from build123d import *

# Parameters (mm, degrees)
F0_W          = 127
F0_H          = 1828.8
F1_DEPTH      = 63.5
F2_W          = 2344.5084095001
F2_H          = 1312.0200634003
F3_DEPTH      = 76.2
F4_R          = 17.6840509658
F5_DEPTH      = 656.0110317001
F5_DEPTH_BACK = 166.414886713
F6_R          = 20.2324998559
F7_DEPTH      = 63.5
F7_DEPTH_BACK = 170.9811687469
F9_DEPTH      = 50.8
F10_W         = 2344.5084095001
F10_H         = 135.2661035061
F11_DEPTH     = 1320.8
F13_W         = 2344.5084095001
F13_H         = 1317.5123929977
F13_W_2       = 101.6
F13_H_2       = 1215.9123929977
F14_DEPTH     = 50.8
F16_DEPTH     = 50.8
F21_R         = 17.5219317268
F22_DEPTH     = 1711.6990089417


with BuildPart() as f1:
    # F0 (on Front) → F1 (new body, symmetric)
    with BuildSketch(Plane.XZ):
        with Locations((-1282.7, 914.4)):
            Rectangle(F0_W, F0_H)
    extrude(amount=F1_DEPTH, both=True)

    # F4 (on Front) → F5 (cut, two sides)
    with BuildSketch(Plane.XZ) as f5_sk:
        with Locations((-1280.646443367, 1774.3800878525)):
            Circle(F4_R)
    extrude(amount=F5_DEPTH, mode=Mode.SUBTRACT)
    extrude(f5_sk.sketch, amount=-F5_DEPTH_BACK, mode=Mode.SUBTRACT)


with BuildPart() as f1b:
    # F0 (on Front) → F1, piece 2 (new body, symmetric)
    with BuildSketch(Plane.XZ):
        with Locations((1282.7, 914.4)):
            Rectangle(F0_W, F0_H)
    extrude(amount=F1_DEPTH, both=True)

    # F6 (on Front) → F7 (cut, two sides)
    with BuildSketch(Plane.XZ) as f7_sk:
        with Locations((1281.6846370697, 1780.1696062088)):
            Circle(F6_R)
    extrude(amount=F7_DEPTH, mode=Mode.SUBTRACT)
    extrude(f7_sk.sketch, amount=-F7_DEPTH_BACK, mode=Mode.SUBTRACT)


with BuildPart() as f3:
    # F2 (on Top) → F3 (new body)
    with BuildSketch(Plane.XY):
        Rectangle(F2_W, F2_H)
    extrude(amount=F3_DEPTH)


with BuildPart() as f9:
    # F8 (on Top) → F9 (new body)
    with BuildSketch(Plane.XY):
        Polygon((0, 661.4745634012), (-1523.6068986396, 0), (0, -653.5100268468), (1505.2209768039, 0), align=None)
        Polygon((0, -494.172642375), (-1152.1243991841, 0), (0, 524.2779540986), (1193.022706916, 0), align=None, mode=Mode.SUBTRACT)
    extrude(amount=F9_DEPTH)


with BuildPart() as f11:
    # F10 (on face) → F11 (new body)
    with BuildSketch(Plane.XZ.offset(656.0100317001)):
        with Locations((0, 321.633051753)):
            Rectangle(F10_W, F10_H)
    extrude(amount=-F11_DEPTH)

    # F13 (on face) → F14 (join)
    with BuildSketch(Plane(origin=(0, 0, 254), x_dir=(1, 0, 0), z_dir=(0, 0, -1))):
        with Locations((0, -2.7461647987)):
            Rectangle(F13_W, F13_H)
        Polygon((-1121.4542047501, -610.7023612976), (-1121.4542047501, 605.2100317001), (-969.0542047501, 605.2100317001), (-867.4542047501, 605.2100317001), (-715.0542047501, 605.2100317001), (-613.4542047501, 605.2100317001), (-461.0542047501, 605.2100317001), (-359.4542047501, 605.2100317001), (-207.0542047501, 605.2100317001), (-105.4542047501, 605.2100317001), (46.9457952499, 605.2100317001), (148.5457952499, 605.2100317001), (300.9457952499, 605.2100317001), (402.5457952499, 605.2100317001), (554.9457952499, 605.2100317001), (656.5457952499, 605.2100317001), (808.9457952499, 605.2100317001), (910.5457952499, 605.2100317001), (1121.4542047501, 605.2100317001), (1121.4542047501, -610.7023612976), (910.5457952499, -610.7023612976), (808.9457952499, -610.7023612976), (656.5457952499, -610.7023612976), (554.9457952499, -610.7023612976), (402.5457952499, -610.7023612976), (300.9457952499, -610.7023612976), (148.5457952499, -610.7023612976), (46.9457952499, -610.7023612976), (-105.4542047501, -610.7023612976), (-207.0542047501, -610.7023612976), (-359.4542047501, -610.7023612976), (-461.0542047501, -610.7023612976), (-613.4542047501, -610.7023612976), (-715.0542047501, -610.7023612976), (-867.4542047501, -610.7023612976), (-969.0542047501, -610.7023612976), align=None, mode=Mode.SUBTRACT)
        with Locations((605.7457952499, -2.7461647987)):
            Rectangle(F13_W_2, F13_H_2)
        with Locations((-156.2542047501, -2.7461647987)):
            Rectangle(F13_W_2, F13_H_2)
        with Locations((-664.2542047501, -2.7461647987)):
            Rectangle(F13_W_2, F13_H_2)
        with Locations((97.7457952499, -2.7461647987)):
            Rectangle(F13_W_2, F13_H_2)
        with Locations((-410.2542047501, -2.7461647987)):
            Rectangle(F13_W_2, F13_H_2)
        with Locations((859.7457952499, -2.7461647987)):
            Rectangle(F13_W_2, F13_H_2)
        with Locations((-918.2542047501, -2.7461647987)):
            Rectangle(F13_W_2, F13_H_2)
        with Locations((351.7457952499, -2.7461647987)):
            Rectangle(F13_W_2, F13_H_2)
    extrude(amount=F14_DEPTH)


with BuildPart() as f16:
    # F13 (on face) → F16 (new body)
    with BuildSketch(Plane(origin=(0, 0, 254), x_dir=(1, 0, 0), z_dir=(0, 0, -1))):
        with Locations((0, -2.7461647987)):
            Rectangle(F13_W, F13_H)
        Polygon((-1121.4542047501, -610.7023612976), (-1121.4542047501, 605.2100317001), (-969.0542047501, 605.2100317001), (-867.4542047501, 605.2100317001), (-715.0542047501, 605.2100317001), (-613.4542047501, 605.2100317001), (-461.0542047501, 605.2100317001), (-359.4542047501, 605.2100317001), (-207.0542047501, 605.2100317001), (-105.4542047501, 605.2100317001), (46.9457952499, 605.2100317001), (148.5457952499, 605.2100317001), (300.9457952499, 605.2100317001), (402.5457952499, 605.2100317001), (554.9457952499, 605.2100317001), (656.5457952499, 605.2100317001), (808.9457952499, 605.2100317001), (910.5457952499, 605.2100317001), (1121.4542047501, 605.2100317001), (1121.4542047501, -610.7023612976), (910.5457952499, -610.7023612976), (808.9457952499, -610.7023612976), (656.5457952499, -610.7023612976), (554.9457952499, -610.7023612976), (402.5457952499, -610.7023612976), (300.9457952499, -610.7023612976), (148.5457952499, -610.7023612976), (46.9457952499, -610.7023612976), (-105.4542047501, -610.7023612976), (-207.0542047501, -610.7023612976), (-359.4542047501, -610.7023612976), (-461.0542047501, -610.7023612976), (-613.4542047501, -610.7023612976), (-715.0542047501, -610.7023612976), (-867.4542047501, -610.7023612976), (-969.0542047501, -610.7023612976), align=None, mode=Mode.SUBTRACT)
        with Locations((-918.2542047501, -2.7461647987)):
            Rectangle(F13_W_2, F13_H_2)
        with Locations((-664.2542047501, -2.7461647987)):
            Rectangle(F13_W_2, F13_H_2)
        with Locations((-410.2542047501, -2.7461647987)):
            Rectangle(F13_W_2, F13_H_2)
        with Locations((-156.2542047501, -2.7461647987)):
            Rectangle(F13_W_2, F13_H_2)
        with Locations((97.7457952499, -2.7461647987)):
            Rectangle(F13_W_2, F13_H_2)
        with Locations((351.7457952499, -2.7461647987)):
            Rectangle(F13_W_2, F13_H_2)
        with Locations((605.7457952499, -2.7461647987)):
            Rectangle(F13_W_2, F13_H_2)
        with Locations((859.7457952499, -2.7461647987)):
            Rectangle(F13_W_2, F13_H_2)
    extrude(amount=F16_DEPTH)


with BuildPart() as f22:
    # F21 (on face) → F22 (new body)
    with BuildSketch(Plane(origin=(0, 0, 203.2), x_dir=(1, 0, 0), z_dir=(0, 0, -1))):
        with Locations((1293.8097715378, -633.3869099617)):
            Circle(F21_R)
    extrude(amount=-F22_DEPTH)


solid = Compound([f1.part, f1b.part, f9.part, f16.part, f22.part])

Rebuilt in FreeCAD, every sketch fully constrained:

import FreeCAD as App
import Part
import Sketcher
Q = App.Units.Quantity


def add_polygon(sketch, points):
    """Adds a closed chain of lines whose ends are joined by coincident constraints."""
    first, n = sketch.GeometryCount, len(points)
    for a, b in zip(points, points[1:] + points[:1]):
        sketch.addGeometry(Part.LineSegment(App.Vector(*a, 0), App.Vector(*b, 0)), False)
    for i in range(n):
        sketch.addConstraint(Sketcher.Constraint("Coincident", first + i, 2, first + (i + 1) % n, 1))

doc = App.newDocument("Part")
body = doc.addObject("PartDesign::Body", "Body")

# Sketch on XZ plane
sketch1 = doc.addObject("Sketcher::SketchObject", "Sketch")
body.addObject(sketch1)
sketch1.AttachmentSupport = (doc.XZ_Plane, [""])
sketch1.MapMode = "FlatFace"
add_polygon(sketch1, [(-1346, 1829), (-1346, 0), (-1219, 0), (-1219, 1829)])  # lines 0-3
sketch1.addConstraint([
    Sketcher.Constraint("Vertical", 0),
    Sketcher.Constraint("Horizontal", 1),
    Sketcher.Constraint("Vertical", 2),
    Sketcher.Constraint("Horizontal", 3),
    Sketcher.Constraint("PointOnObject", 0, 2, -1),
    Sketcher.Constraint("DistanceX", 1, 1, 1, 2, Q("5 in")),
    Sketcher.Constraint("DistanceY", 0, 2, 0, 1, Q("72 in")),
    Sketcher.Constraint("DistanceX", 0, 2, -1, 1, Q("53 in")),
])
pad1 = doc.addObject("PartDesign::Pad", "Pad")
body.addObject(pad1)
pad1.Profile = sketch1
pad1.Length = Q("5 in")
pad1.Midplane = True

# Sketch on XZ plane
sketch2 = doc.addObject("Sketcher::SketchObject", "Sketch001")
body.addObject(sketch2)
sketch2.AttachmentSupport = (doc.XZ_Plane, [""])
sketch2.MapMode = "FlatFace"
sketch2.addGeometry(Part.Circle(App.Vector(-1281, 1774, 0), App.Vector(0, 0, 1), 18), False)
sketch2.addConstraint([
    Sketcher.Constraint("Diameter", 0, 35.368102),
    Sketcher.Constraint("DistanceX", 0, 3, -1, 1, 1280.646443),
    Sketcher.Constraint("DistanceY", -1, 1, 0, 3, 1774.380088),
])
pocket1 = doc.addObject("PartDesign::Pocket", "Pocket")
body.addObject(pocket1)
pocket1.Profile = sketch2
pocket1.Type = "ThroughAll"
pocket1.Midplane = True
body2 = doc.addObject("PartDesign::Body", "Body001")

# Sketch on XZ plane
sketch3 = doc.addObject("Sketcher::SketchObject", "Sketch002")
body2.addObject(sketch3)
sketch3.AttachmentSupport = (doc.getObject("XZ_Plane001"), [""])
sketch3.MapMode = "FlatFace"
add_polygon(sketch3, [(1219, 1829), (1219, 0), (1346, 0), (1346, 1829)])  # lines 0-3
sketch3.addConstraint([
    Sketcher.Constraint("Vertical", 0),
    Sketcher.Constraint("Horizontal", 1),
    Sketcher.Constraint("Vertical", 2),
    Sketcher.Constraint("Horizontal", 3),
    Sketcher.Constraint("PointOnObject", 0, 2, -1),
    Sketcher.Constraint("DistanceX", 1, 1, 1, 2, Q("5 in")),
    Sketcher.Constraint("DistanceY", 0, 2, 0, 1, Q("72 in")),
    Sketcher.Constraint("DistanceX", -1, 1, 0, 2, Q("48 in")),
])
pad2 = doc.addObject("PartDesign::Pad", "Pad001")
body2.addObject(pad2)
pad2.Profile = sketch3
pad2.Length = Q("5 in")
pad2.Midplane = True

# Sketch on XZ plane
sketch4 = doc.addObject("Sketcher::SketchObject", "Sketch003")
body2.addObject(sketch4)
sketch4.AttachmentSupport = (doc.getObject("XZ_Plane001"), [""])
sketch4.MapMode = "FlatFace"
sketch4.addGeometry(Part.Circle(App.Vector(1282, 1780, 0), App.Vector(0, 0, 1), 20), False)
sketch4.addConstraint([
    Sketcher.Constraint("Diameter", 0, 40.465),
    Sketcher.Constraint("DistanceX", -1, 1, 0, 3, 1281.684637),
    Sketcher.Constraint("DistanceY", -1, 1, 0, 3, 1780.169606),
])
pocket2 = doc.addObject("PartDesign::Pocket", "Pocket001")
body2.addObject(pocket2)
pocket2.Profile = sketch4
pocket2.Type = "ThroughAll"
pocket2.Midplane = True
body3 = doc.addObject("PartDesign::Body", "Body002")

# Sketch on XY plane
sketch5 = doc.addObject("Sketcher::SketchObject", "Sketch004")
body3.addObject(sketch5)
sketch5.AttachmentSupport = (doc.getObject("XY_Plane002"), [""])
sketch5.MapMode = "FlatFace"
add_polygon(sketch5, [(-1172, 656), (-1172, -656), (1172, -656), (1172, 656)])  # lines 0-3
sketch5.addConstraint([
    Sketcher.Constraint("Vertical", 0),
    Sketcher.Constraint("Horizontal", 1),
    Sketcher.Constraint("Vertical", 2),
    Sketcher.Constraint("Horizontal", 3),
    Sketcher.Constraint("Symmetric", 0, 2, 2, 2, -1, 1),
    Sketcher.Constraint("DistanceX", 1, 1, 1, 2, 2344.50841),
    Sketcher.Constraint("DistanceY", 0, 2, 0, 1, 1312.020063),
])
pad3 = doc.addObject("PartDesign::Pad", "Pad002")
body3.addObject(pad3)
pad3.Profile = sketch5
pad3.Length = Q("3 in")
body4 = doc.addObject("PartDesign::Body", "Body003")

# Sketch on XY plane
sketch6 = doc.addObject("Sketcher::SketchObject", "Sketch005")
body4.addObject(sketch6)
sketch6.AttachmentSupport = (doc.getObject("XY_Plane003"), [""])
sketch6.MapMode = "FlatFace"
add_polygon(sketch6, [(0, 661), (-1524, 0), (0, -654), (1505, 0)])  # lines 0-3
add_polygon(sketch6, [(1193, 0), (0, -494), (-1152, 0), (0, 524)])  # lines 4-7
sketch6.addConstraint([
    Sketcher.Constraint("PointOnObject", 0, 2, -1),
    Sketcher.Constraint("PointOnObject", 1, 2, -2),
    Sketcher.Constraint("PointOnObject", 2, 2, -1),
    Sketcher.Constraint("PointOnObject", 3, 2, -2),
    Sketcher.Constraint("PointOnObject", 4, 2, -2),
    Sketcher.Constraint("PointOnObject", 5, 2, -1),
    Sketcher.Constraint("PointOnObject", 6, 2, -2),
    Sketcher.Constraint("PointOnObject", 7, 2, -1),
    Sketcher.Constraint("Parallel", 1, 5),
    Sketcher.Constraint("Parallel", 3, 7),
    Sketcher.Constraint("DistanceX", 0, 2, -1, 1, 1523.606899),
    Sketcher.Constraint("DistanceX", 5, 2, -1, 1, 1152.124399),
    Sketcher.Constraint("Distance", 0, 1661.00168),
    Sketcher.Constraint("Distance", 2, 1640.964821),
    Sketcher.Constraint("Distance", 3, 1644.152909),
    Sketcher.Constraint("Distance", 7, 1303.138731),
])
pad4 = doc.addObject("PartDesign::Pad", "Pad003")
body4.addObject(pad4)
pad4.Profile = sketch6
pad4.Length = Q("2 in")
body5 = doc.addObject("PartDesign::Body", "Body004")

# Sketch on XZ plane
sketch7 = doc.addObject("Sketcher::SketchObject", "Sketch006")
body5.addObject(sketch7)
sketch7.AttachmentSupport = (doc.getObject("XZ_Plane004"), [""])
sketch7.MapMode = "FlatFace"
sketch7.AttachmentOffset = App.Placement(App.Vector(0, 0, 656.010032), App.Rotation())
add_polygon(sketch7, [(-1172, 389), (-1172, 254), (1172, 254), (1172, 389)])  # lines 0-3
sketch7.addConstraint([
    Sketcher.Constraint("Vertical", 0),
    Sketcher.Constraint("Horizontal", 1),
    Sketcher.Constraint("Vertical", 2),
    Sketcher.Constraint("Horizontal", 3),
    Sketcher.Constraint("DistanceY", -1, 1, 0, 2, Q("10 in")),
    Sketcher.Constraint("DistanceX", 1, 1, 1, 2, 2344.50841),
    Sketcher.Constraint("DistanceY", 0, 2, 0, 1, 135.266104),
    Sketcher.Constraint("DistanceX", 0, 2, -1, 1, 1172.254205),
])
pad5 = doc.addObject("PartDesign::Pad", "Pad004")
body5.addObject(pad5)
pad5.Profile = sketch7
pad5.Length = Q("52 in")
pad5.Reversed = True

# Sketch on XY plane
sketch8 = doc.addObject("Sketcher::SketchObject", "Sketch007")
body5.addObject(sketch8)
sketch8.AttachmentSupport = (doc.getObject("XY_Plane004"), [""])
sketch8.MapMode = "FlatFace"
sketch8.AttachmentOffset = App.Placement(App.Vector(0, 0, 10 * 25.4), App.Rotation())
add_polygon(sketch8, [(-1172, -656), (-1172, 662), (1172, 662), (1172, -656)])  # lines 0-3
add_polygon(sketch8, [(1121, 611), (911, 611), (911, -605), (1121, -605)])  # lines 4-7
add_polygon(sketch8, [(809, 611), (657, 611), (657, -605), (809, -605)])  # lines 8-11
add_polygon(sketch8, [(555, 611), (403, 611), (403, -605), (555, -605)])  # lines 12-15
add_polygon(sketch8, [(301, 611), (149, 611), (149, -605), (301, -605)])  # lines 16-19
add_polygon(sketch8, [(47, 611), (-105, 611), (-105, -605), (47, -605)])  # lines 20-23
add_polygon(sketch8, [(-207, 611), (-359, 611), (-359, -605), (-207, -605)])  # lines 24-27
add_polygon(sketch8, [(-461, 611), (-613, 611), (-613, -605), (-461, -605)])  # lines 28-31
add_polygon(sketch8, [(-715, 611), (-867, 611), (-867, -605), (-715, -605)])  # lines 32-35
add_polygon(sketch8, [(-969, 611), (-1121, 611), (-1121, -605), (-969, -605)])  # lines 36-39
sketch8.addConstraint([
    Sketcher.Constraint("Vertical", 0),
    Sketcher.Constraint("Horizontal", 1),
    Sketcher.Constraint("Vertical", 2),
    Sketcher.Constraint("Horizontal", 3),
    Sketcher.Constraint("Horizontal", 4),
    Sketcher.Constraint("Vertical", 5),
    Sketcher.Constraint("Horizontal", 6),
    Sketcher.Constraint("Vertical", 7),
    Sketcher.Constraint("Horizontal", 8),
    Sketcher.Constraint("Vertical", 9),
    Sketcher.Constraint("Horizontal", 10),
    Sketcher.Constraint("Vertical", 11),
    Sketcher.Constraint("Horizontal", 12),
    Sketcher.Constraint("Vertical", 13),
    Sketcher.Constraint("Horizontal", 14),
    Sketcher.Constraint("Vertical", 15),
    Sketcher.Constraint("Horizontal", 16),
    Sketcher.Constraint("Vertical", 17),
    Sketcher.Constraint("Horizontal", 18),
    Sketcher.Constraint("Vertical", 19),
    Sketcher.Constraint("Horizontal", 20),
    Sketcher.Constraint("Vertical", 21),
    Sketcher.Constraint("Horizontal", 22),
    Sketcher.Constraint("Vertical", 23),
    Sketcher.Constraint("Horizontal", 24),
    Sketcher.Constraint("Vertical", 25),
    Sketcher.Constraint("Horizontal", 26),
    Sketcher.Constraint("Vertical", 27),
    Sketcher.Constraint("Horizontal", 28),
    Sketcher.Constraint("Vertical", 29),
    Sketcher.Constraint("Horizontal", 30),
    Sketcher.Constraint("Vertical", 31),
    Sketcher.Constraint("Horizontal", 32),
    Sketcher.Constraint("Vertical", 33),
    Sketcher.Constraint("Horizontal", 34),
    Sketcher.Constraint("Vertical", 35),
    Sketcher.Constraint("Horizontal", 36),
    Sketcher.Constraint("Vertical", 37),
    Sketcher.Constraint("Horizontal", 38),
    Sketcher.Constraint("Vertical", 39),
    Sketcher.Constraint("Symmetric", 7, 2, 36, 2, -2),
    Sketcher.Constraint("Horizontal", 7, 2, 8, 2),
    Sketcher.Constraint("Horizontal", 6, 2, 9, 2),
    Sketcher.Constraint("Horizontal", 11, 2, 12, 2),
    Sketcher.Constraint("Horizontal", 10, 2, 13, 2),
    Sketcher.Constraint("Horizontal", 15, 2, 16, 2),
    Sketcher.Constraint("Horizontal", 14, 2, 17, 2),
    Sketcher.Constraint("Horizontal", 19, 2, 20, 2),
    Sketcher.Constraint("Horizontal", 18, 2, 21, 2),
    Sketcher.Constraint("Horizontal", 23, 2, 24, 2),
    Sketcher.Constraint("Horizontal", 22, 2, 25, 2),
    Sketcher.Constraint("Horizontal", 27, 2, 28, 2),
    Sketcher.Constraint("Horizontal", 26, 2, 29, 2),
    Sketcher.Constraint("Horizontal", 31, 2, 32, 2),
    Sketcher.Constraint("Horizontal", 30, 2, 33, 2),
    Sketcher.Constraint("Horizontal", 34, 2, 37, 2),
    Sketcher.Constraint("Equal", 10, 12),
    Sketcher.Constraint("Equal", 14, 16),
    Sketcher.Constraint("Equal", 18, 20),
    Sketcher.Constraint("Equal", 22, 24),
    Sketcher.Constraint("Equal", 26, 28),
    Sketcher.Constraint("Equal", 30, 32),
    Sketcher.Constraint("Equal", 34, 36),
    Sketcher.Constraint("DistanceX", 8, 2, 8, 1, Q("6 in")),
    Sketcher.Constraint("DistanceY", 4, 2, 1, 2, Q("2 in")),
    Sketcher.Constraint("DistanceX", 0, 2, 4, 2, Q("82 in")),
    Sketcher.Constraint("DistanceY", 2, 2, 5, 2, Q("2 in")),
    Sketcher.Constraint("DistanceX", 6, 2, 2, 2, Q("2 in")),
    Sketcher.Constraint("DistanceX", 8, 2, 4, 2, Q("10 in")),
    Sketcher.Constraint("DistanceX", 12, 2, 8, 2, Q("10 in")),
    Sketcher.Constraint("DistanceX", 16, 2, 12, 2, Q("10 in")),
    Sketcher.Constraint("DistanceX", 20, 2, 16, 2, Q("10 in")),
    Sketcher.Constraint("DistanceX", 24, 2, 20, 2, Q("10 in")),
    Sketcher.Constraint("DistanceX", 28, 2, 24, 2, Q("10 in")),
    Sketcher.Constraint("DistanceX", 32, 2, 28, 2, Q("10 in")),
    Sketcher.Constraint("DistanceX", 0, 2, 36, 2, Q("2 in")),
    Sketcher.Constraint("DistanceY", -1, 1, 0, 2, Q("26.0434001 in")),
    Sketcher.Constraint("DistanceX", 1, 1, 1, 2, 2344.50841),
    Sketcher.Constraint("DistanceY", 0, 1, 0, 2, 1317.512393),
])
pad6 = doc.addObject("PartDesign::Pad", "Pad005")
body5.addObject(pad6)
pad6.Profile = sketch8
pad6.Length = Q("2 in")
pad6.Reversed = True
body6 = doc.addObject("PartDesign::Body", "Body005")

# Sketch on XY plane
sketch9 = doc.addObject("Sketcher::SketchObject", "Sketch008")
body6.addObject(sketch9)
sketch9.AttachmentSupport = (doc.getObject("XY_Plane005"), [""])
sketch9.MapMode = "FlatFace"
sketch9.AttachmentOffset = App.Placement(App.Vector(0, 0, 10 * 25.4), App.Rotation())
add_polygon(sketch9, [(-1172, -656), (-1172, 662), (1172, 662), (1172, -656)])  # lines 0-3
add_polygon(sketch9, [(1121, 611), (911, 611), (911, -605), (1121, -605)])  # lines 4-7
add_polygon(sketch9, [(809, 611), (657, 611), (657, -605), (809, -605)])  # lines 8-11
add_polygon(sketch9, [(555, 611), (403, 611), (403, -605), (555, -605)])  # lines 12-15
add_polygon(sketch9, [(301, 611), (149, 611), (149, -605), (301, -605)])  # lines 16-19
add_polygon(sketch9, [(47, 611), (-105, 611), (-105, -605), (47, -605)])  # lines 20-23
add_polygon(sketch9, [(-207, 611), (-359, 611), (-359, -605), (-207, -605)])  # lines 24-27
add_polygon(sketch9, [(-461, 611), (-613, 611), (-613, -605), (-461, -605)])  # lines 28-31
add_polygon(sketch9, [(-715, 611), (-867, 611), (-867, -605), (-715, -605)])  # lines 32-35
add_polygon(sketch9, [(-969, 611), (-1121, 611), (-1121, -605), (-969, -605)])  # lines 36-39
sketch9.addConstraint([
    Sketcher.Constraint("Vertical", 0),
    Sketcher.Constraint("Horizontal", 1),
    Sketcher.Constraint("Vertical", 2),
    Sketcher.Constraint("Horizontal", 3),
    Sketcher.Constraint("Horizontal", 4),
    Sketcher.Constraint("Vertical", 5),
    Sketcher.Constraint("Horizontal", 6),
    Sketcher.Constraint("Vertical", 7),
    Sketcher.Constraint("Horizontal", 8),
    Sketcher.Constraint("Vertical", 9),
    Sketcher.Constraint("Horizontal", 10),
    Sketcher.Constraint("Vertical", 11),
    Sketcher.Constraint("Horizontal", 12),
    Sketcher.Constraint("Vertical", 13),
    Sketcher.Constraint("Horizontal", 14),
    Sketcher.Constraint("Vertical", 15),
    Sketcher.Constraint("Horizontal", 16),
    Sketcher.Constraint("Vertical", 17),
    Sketcher.Constraint("Horizontal", 18),
    Sketcher.Constraint("Vertical", 19),
    Sketcher.Constraint("Horizontal", 20),
    Sketcher.Constraint("Vertical", 21),
    Sketcher.Constraint("Horizontal", 22),
    Sketcher.Constraint("Vertical", 23),
    Sketcher.Constraint("Horizontal", 24),
    Sketcher.Constraint("Vertical", 25),
    Sketcher.Constraint("Horizontal", 26),
    Sketcher.Constraint("Vertical", 27),
    Sketcher.Constraint("Horizontal", 28),
    Sketcher.Constraint("Vertical", 29),
    Sketcher.Constraint("Horizontal", 30),
    Sketcher.Constraint("Vertical", 31),
    Sketcher.Constraint("Horizontal", 32),
    Sketcher.Constraint("Vertical", 33),
    Sketcher.Constraint("Horizontal", 34),
    Sketcher.Constraint("Vertical", 35),
    Sketcher.Constraint("Horizontal", 36),
    Sketcher.Constraint("Vertical", 37),
    Sketcher.Constraint("Horizontal", 38),
    Sketcher.Constraint("Vertical", 39),
    Sketcher.Constraint("Symmetric", 7, 2, 36, 2, -2),
    Sketcher.Constraint("Horizontal", 7, 2, 8, 2),
    Sketcher.Constraint("Horizontal", 6, 2, 9, 2),
    Sketcher.Constraint("Horizontal", 11, 2, 12, 2),
    Sketcher.Constraint("Horizontal", 10, 2, 13, 2),
    Sketcher.Constraint("Horizontal", 15, 2, 16, 2),
    Sketcher.Constraint("Horizontal", 14, 2, 17, 2),
    Sketcher.Constraint("Horizontal", 19, 2, 20, 2),
    Sketcher.Constraint("Horizontal", 18, 2, 21, 2),
    Sketcher.Constraint("Horizontal", 23, 2, 24, 2),
    Sketcher.Constraint("Horizontal", 22, 2, 25, 2),
    Sketcher.Constraint("Horizontal", 27, 2, 28, 2),
    Sketcher.Constraint("Horizontal", 26, 2, 29, 2),
    Sketcher.Constraint("Horizontal", 31, 2, 32, 2),
    Sketcher.Constraint("Horizontal", 30, 2, 33, 2),
    Sketcher.Constraint("Horizontal", 34, 2, 37, 2),
    Sketcher.Constraint("Equal", 10, 12),
    Sketcher.Constraint("Equal", 14, 16),
    Sketcher.Constraint("Equal", 18, 20),
    Sketcher.Constraint("Equal", 22, 24),
    Sketcher.Constraint("Equal", 26, 28),
    Sketcher.Constraint("Equal", 30, 32),
    Sketcher.Constraint("Equal", 34, 36),
    Sketcher.Constraint("DistanceX", 8, 2, 8, 1, Q("6 in")),
    Sketcher.Constraint("DistanceY", 4, 2, 1, 2, Q("2 in")),
    Sketcher.Constraint("DistanceX", 0, 2, 4, 2, Q("82 in")),
    Sketcher.Constraint("DistanceY", 2, 2, 5, 2, Q("2 in")),
    Sketcher.Constraint("DistanceX", 6, 2, 2, 2, Q("2 in")),
    Sketcher.Constraint("DistanceX", 8, 2, 4, 2, Q("10 in")),
    Sketcher.Constraint("DistanceX", 12, 2, 8, 2, Q("10 in")),
    Sketcher.Constraint("DistanceX", 16, 2, 12, 2, Q("10 in")),
    Sketcher.Constraint("DistanceX", 20, 2, 16, 2, Q("10 in")),
    Sketcher.Constraint("DistanceX", 24, 2, 20, 2, Q("10 in")),
    Sketcher.Constraint("DistanceX", 28, 2, 24, 2, Q("10 in")),
    Sketcher.Constraint("DistanceX", 32, 2, 28, 2, Q("10 in")),
    Sketcher.Constraint("DistanceX", 0, 2, 36, 2, Q("2 in")),
    Sketcher.Constraint("DistanceY", -1, 1, 0, 2, Q("26.0434001 in")),
    Sketcher.Constraint("DistanceX", 1, 1, 1, 2, 2344.50841),
    Sketcher.Constraint("DistanceY", 0, 1, 0, 2, 1317.512393),
])
pad7 = doc.addObject("PartDesign::Pad", "Pad006")
body6.addObject(pad7)
pad7.Profile = sketch9
pad7.Length = Q("2 in")
pad7.Reversed = True
body7 = doc.addObject("PartDesign::Body", "Body006")

# Sketch on XY plane
sketch10 = doc.addObject("Sketcher::SketchObject", "Sketch009")
body7.addObject(sketch10)
sketch10.AttachmentSupport = (doc.getObject("XY_Plane006"), [""])
sketch10.MapMode = "FlatFace"
sketch10.AttachmentOffset = App.Placement(App.Vector(0, 0, 8 * 25.4), App.Rotation())
sketch10.addGeometry(Part.Circle(App.Vector(1294, 633, 0), App.Vector(0, 0, 1), 18), False)
sketch10.addConstraint([
    Sketcher.Constraint("Diameter", 0, 35.043863),
    Sketcher.Constraint("DistanceX", -1, 1, 0, 3, 1293.809772),
    Sketcher.Constraint("DistanceY", -1, 1, 0, 3, 633.38691),
])
pad8 = doc.addObject("PartDesign::Pad", "Pad007")
body7.addObject(pad8)
pad8.Profile = sketch10
pad8.Length = 1711.699009
body3.Visibility = False
body5.Visibility = False

doc.recompute()
